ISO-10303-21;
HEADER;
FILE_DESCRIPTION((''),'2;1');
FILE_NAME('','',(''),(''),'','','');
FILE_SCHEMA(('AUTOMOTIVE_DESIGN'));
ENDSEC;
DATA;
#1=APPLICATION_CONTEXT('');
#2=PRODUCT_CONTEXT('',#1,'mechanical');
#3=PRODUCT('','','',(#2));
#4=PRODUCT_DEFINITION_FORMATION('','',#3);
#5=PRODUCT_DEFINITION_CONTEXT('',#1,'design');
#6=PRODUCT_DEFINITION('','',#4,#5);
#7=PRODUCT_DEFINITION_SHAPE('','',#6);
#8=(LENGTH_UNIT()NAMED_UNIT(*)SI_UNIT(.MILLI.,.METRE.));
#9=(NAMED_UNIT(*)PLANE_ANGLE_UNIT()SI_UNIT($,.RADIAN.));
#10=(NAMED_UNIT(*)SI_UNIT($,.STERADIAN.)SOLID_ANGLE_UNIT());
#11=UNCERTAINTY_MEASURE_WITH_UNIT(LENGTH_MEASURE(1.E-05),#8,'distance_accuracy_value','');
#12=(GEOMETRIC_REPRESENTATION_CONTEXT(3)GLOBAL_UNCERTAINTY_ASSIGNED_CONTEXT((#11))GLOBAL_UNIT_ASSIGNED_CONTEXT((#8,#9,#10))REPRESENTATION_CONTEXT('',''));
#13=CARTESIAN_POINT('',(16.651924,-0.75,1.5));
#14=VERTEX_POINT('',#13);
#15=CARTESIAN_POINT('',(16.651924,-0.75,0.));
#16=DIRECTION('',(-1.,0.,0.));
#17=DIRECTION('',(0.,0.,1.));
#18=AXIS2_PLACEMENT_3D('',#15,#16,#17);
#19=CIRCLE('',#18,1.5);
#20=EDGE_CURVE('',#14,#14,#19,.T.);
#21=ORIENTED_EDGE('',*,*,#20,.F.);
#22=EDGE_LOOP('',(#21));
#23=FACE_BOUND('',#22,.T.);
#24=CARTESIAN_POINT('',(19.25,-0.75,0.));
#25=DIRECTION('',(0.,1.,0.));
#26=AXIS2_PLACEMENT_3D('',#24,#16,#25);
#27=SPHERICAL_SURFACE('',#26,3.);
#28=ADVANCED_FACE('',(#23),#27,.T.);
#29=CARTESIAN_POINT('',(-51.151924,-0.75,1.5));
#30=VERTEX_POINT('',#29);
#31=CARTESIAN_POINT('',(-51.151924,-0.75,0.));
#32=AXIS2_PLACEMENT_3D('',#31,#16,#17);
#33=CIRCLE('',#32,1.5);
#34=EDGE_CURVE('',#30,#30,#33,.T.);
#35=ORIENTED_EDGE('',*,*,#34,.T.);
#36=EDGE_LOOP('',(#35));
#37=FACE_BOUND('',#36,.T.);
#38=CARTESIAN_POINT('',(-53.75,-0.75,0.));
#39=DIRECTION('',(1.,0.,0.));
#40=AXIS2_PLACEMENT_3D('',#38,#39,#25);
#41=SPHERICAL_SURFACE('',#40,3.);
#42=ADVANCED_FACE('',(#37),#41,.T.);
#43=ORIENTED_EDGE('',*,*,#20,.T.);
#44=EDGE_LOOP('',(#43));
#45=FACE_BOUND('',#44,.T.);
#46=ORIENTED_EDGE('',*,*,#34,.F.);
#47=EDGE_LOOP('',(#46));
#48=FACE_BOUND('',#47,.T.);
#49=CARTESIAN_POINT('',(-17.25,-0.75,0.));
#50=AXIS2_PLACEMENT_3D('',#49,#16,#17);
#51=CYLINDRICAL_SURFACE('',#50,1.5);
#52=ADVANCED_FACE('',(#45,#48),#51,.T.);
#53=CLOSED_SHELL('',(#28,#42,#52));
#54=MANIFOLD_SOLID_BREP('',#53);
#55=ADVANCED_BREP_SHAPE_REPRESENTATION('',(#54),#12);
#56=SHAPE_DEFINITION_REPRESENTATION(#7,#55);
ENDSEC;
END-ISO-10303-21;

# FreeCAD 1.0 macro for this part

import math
import FreeCAD as App
import Part
import Sketcher

V = App.Vector

doc = App.newDocument("Part")
body = doc.addObject("PartDesign::Body", "Body")

# Sketch on XY plane
sketch1 = doc.addObject("Sketcher::SketchObject", "Sketch")
body.addObject(sketch1)
sketch1.AttachmentSupport = (doc.XY_Plane, [""])
sketch1.MapMode = "FlatFace"
sketch1.addGeometry([
    Part.LineSegment(V(-17.25, 0.75, 0), V(-17.25, -0.75, 0)),
    Part.LineSegment(V(-17.25, -0.75, 0), V(22.25, -0.75, 0)),
    Part.ArcOfCircle(Part.Circle(V(19.25, -0.75, 0), V(0, 0, 1), 3), math.radians(0), math.radians(150)),
    Part.LineSegment(V(16.651924, 0.75, 0), V(-17.25, 0.75, 0)),
], False)
sketch1.addGeometry(Part.LineSegment(V(-17.25, -0.75, 0), V(22.25, -0.75, 0)), True)  # axis
sketch1.addConstraint([
    Sketcher.Constraint("Coincident", 0, 2, 1, 1),
    Sketcher.Constraint("Coincident", 1, 2, 2, 1),
    Sketcher.Constraint("Coincident", 2, 2, 3, 1),
    Sketcher.Constraint("Coincident", 3, 2, 0, 1),
    Sketcher.Constraint("Vertical", 0),
    Sketcher.Constraint("Horizontal", 1),
    Sketcher.Constraint("Horizontal", 3),
    Sketcher.Constraint("Horizontal", 4),
    Sketcher.Constraint("Coincident", 4, 1, 0, 2),
    Sketcher.Constraint("Horizontal", 2, 3, 0, 2),
    Sketcher.Constraint("Equal", 1, 4),
    Sketcher.Constraint("Radius", 2, 3.0),
    Sketcher.Constraint("DistanceX", 1, 1, 1, 2, 39.5),
    Sketcher.Constraint("DistanceY", 0, 2, 0, 1, 1.5),
    Sketcher.Constraint("DistanceX", -1, 1, 2, 3, 19.25),
    Sketcher.Constraint("DistanceY", 2, 3, -1, 1, 0.75),
])
revolution = doc.addObject("PartDesign::Revolution", "Revolution")
body.addObject(revolution)
revolution.Profile = sketch1
revolution.ReferenceAxis = (sketch1, ["Axis0"])
revolution.Angle = 360
doc.recompute()

datumplane = doc.addObject("PartDesign::Plane", "DatumPlane")
body.addObject(datumplane)
datumplane.AttachmentSupport = (doc.YZ_Plane, [""])
datumplane.MapMode = "FlatFace"
datumplane.AttachmentOffset = App.Placement(V(0, 0, -17.25), App.Rotation())
mirrored = doc.addObject("PartDesign::Mirrored", "Mirrored")
body.addObject(mirrored)
mirrored.Originals = [revolution]
mirrored.MirrorPlane = (datumplane, [""])
body.Tip = mirrored

doc.recompute()
